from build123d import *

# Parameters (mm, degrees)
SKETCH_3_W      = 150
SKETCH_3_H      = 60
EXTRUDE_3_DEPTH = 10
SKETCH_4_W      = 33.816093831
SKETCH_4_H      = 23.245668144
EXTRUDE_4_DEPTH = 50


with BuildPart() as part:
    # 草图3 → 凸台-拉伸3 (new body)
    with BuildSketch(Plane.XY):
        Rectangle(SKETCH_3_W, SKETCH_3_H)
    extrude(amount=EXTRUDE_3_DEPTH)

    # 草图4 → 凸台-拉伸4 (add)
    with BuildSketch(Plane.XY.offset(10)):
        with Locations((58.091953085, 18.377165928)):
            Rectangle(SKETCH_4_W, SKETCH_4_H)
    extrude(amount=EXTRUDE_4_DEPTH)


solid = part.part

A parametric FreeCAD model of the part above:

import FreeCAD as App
import Part
import Sketcher
from FreeCAD import Vector
Q = App.Units.Quantity

doc = App.newDocument("Part")
body = doc.addObject("PartDesign::Body", "Body")

# Sketch on XY plane
sketch1 = body.newObject("Sketcher::SketchObject", "Sketch")
sketch1.AttachmentSupport = (doc.getObject("XY_Plane"), [""])
sketch1.MapMode = "FlatFace"
sketch1.addGeometry([
    Part.LineSegment(Vector(-75, 30, 0), Vector(-75, -30, 0)),
    Part.LineSegment(Vector(-75, -30, 0), Vector(75, -30, 0)),
    Part.LineSegment(Vector(75, -30, 0), Vector(75, 30, 0)),
    Part.LineSegment(Vector(75, 30, 0), Vector(-75, 30, 0)),
], False)
sketch1.addConstraint([
    Sketcher.Constraint("Coincident", 0, 2, 1, 1),
    Sketcher.Constraint("Coincident", 1, 2, 2, 1),
    Sketcher.Constraint("Coincident", 2, 2, 3, 1),
    Sketcher.Constraint("Coincident", 3, 2, 0, 1),
    Sketcher.Constraint("Vertical", 0),
    Sketcher.Constraint("Horizontal", 1),
    Sketcher.Constraint("Vertical", 2),
    Sketcher.Constraint("Horizontal", 3),
    Sketcher.Constraint("Symmetric", 0, 2, 2, 2, -1, 1),
    Sketcher.Constraint("DistanceX", 1, 1, 1, 2, Q("150 mm")),
    Sketcher.Constraint("DistanceY", 0, 2, 0, 1, Q("60 mm")),
])
pad1 = body.newObject("PartDesign::Pad", "Pad")
pad1.Profile = sketch1
pad1.Length = 10

# Sketch on XY plane
sketch2 = body.newObject("Sketcher::SketchObject", "Sketch001")
sketch2.AttachmentSupport = (doc.getObject("XY_Plane"), [""])
sketch2.MapMode = "FlatFace"
sketch2.AttachmentOffset = App.Placement(Vector(0, 0, 10), App.Rotation())
sketch2.addGeometry([
    Part.LineSegment(Vector(41.183906, 30, 0), Vector(41.183906, 6.754332, 0)),
    Part.LineSegment(Vector(41.183906, 6.754332, 0), Vector(75, 6.754332, 0)),
    Part.LineSegment(Vector(75, 6.754332, 0), Vector(75, 30, 0)),
    Part.LineSegment(Vector(75, 30, 0), Vector(41.183906, 30, 0)),
], False)
sketch2.addConstraint([
    Sketcher.Constraint("Coincident", 0, 2, 1, 1),
    Sketcher.Constraint("Coincident", 1, 2, 2, 1),
    Sketcher.Constraint("Coincident", 2, 2, 3, 1),
    Sketcher.Constraint("Coincident", 3, 2, 0, 1),
    Sketcher.Constraint("Vertical", 0),
    Sketcher.Constraint("Horizontal", 1),
    Sketcher.Constraint("Vertical", 2),
    Sketcher.Constraint("Horizontal", 3),
    Sketcher.Constraint("DistanceX", -1, 1, 1, 2, Q("75 mm")),
    Sketcher.Constraint("DistanceY", -1, 1, 2, 2, Q("30 mm")),
    Sketcher.Constraint("DistanceY", 0, 2, 0, 1, Q("23.245668 mm")),
    Sketcher.Constraint("DistanceX", 1, 1, 1, 2, Q("33.816094 mm")),
])
pad2 = body.newObject("PartDesign::Pad", "Pad001")
pad2.Profile = sketch2
pad2.Length = 50

doc.recompute()
